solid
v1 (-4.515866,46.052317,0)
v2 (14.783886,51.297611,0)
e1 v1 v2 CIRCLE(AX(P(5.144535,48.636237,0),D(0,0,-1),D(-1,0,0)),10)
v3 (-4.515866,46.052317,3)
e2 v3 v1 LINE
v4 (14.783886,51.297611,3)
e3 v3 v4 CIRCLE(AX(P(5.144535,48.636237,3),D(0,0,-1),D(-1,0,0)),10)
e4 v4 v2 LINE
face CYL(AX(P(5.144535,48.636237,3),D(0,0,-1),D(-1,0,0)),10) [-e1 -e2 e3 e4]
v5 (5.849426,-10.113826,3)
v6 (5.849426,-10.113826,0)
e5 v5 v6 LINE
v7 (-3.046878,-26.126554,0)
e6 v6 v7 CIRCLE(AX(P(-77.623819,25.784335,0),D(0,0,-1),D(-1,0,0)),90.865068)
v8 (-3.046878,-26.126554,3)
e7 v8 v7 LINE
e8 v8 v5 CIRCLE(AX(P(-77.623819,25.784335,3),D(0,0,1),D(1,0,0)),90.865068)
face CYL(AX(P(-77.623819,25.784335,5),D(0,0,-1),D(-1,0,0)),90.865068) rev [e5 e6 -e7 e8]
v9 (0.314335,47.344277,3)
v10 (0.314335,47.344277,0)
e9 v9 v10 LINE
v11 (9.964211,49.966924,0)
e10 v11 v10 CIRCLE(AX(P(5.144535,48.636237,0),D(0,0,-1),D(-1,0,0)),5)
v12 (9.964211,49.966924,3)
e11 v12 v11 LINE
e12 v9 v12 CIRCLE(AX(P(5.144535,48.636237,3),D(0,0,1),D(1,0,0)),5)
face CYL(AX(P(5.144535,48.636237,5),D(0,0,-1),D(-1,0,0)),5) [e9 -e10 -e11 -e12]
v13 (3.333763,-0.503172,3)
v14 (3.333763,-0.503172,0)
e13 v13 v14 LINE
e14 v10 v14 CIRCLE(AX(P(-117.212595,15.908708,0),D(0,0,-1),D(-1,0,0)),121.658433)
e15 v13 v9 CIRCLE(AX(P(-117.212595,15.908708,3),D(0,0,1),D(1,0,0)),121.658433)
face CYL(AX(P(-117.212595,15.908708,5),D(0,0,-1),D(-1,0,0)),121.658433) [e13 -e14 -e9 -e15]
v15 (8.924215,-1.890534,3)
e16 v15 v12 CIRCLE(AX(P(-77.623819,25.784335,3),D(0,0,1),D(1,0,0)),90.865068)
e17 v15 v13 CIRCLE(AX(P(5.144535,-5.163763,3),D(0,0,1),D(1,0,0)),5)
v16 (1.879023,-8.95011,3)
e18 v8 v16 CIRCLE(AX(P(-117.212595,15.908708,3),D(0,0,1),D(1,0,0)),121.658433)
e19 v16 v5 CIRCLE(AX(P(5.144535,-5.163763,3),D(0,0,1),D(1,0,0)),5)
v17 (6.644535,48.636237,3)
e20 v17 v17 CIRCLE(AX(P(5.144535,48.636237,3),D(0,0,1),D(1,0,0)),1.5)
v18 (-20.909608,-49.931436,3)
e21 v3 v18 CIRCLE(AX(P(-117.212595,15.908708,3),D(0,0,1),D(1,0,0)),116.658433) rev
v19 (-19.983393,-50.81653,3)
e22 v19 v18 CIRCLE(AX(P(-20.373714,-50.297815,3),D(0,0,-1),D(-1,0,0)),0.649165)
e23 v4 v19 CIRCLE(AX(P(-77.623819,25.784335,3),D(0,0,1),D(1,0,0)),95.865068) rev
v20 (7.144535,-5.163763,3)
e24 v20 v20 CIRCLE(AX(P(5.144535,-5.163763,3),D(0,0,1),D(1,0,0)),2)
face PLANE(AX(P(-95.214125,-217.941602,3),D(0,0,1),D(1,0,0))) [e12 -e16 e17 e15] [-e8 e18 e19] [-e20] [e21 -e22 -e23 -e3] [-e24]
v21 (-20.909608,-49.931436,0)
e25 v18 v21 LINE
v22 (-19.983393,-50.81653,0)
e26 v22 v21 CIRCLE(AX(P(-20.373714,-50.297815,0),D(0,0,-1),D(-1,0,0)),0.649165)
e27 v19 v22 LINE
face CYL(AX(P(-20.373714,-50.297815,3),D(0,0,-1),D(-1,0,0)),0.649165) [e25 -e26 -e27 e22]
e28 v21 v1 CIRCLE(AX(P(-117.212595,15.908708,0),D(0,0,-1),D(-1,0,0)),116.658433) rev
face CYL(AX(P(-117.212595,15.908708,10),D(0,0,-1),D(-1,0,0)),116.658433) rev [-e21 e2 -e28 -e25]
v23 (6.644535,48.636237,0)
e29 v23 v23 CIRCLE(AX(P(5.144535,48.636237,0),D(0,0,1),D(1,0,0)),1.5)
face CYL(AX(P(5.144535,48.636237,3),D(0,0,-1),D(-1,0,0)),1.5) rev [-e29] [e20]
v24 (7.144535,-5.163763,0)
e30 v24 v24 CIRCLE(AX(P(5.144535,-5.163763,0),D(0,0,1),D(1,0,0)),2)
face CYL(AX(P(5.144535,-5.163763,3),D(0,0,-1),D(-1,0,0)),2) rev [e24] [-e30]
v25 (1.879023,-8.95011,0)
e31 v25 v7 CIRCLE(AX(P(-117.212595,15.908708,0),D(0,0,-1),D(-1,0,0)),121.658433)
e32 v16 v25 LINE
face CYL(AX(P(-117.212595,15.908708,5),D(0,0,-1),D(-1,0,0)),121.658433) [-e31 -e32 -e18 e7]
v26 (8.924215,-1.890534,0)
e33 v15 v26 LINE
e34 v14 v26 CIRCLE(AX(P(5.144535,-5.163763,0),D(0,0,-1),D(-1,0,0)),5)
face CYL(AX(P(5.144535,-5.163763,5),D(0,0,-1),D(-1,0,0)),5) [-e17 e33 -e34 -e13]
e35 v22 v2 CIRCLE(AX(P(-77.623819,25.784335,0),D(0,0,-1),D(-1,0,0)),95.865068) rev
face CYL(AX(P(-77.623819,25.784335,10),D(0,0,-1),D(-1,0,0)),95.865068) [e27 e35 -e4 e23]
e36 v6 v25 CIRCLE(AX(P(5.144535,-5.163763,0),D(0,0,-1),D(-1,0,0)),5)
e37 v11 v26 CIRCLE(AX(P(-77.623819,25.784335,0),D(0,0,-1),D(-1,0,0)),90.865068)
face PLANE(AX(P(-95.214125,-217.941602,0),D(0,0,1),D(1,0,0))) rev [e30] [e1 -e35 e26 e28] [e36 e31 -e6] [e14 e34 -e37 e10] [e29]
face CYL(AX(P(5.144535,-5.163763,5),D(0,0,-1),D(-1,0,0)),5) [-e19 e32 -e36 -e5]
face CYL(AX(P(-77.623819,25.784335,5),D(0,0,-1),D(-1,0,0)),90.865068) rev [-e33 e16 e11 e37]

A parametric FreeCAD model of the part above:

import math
import FreeCAD as App
import Part
import Sketcher

V = App.Vector

doc = App.newDocument("Part")
params = doc.addObject("Spreadsheet::Sheet", "Params")
for row, (alias, value) in enumerate([
    ("sketch1_diameter", "4 mm"),
    ("sketch1_diameter2", "3 mm"),
    ("sketch1_radius", "5 mm"),
    ("pad1_length", "3 mm"),
    ("sketch2_radius", "2 mm"),
    ("sketch2_radius2", "5 mm"),
    ("pocket1_length", "10 mm"),
    ("sketch3_radius", "10 mm"),
    ("sketch3_radius2", "5 mm"),
    ("sketch3_radius3", "2 mm"),
    ("pad2_length", "3 mm"),
    ("sketch4_radius", "5 mm"),
    ("pocket2_length", "5 mm"),
], start=1):
    params.set(f"A{row}", alias)
    params.set(f"B{row}", "=" + value)
    params.setAlias(f"B{row}", alias)

body = doc.addObject("PartDesign::Body", "Body")

# Sketch on XY plane
sketch1 = body.newObject("Sketcher::SketchObject", "Sketch")
sketch1.AttachmentSupport = (doc.getObject("XY_Plane"), [""])
sketch1.MapMode = "FlatFace"
sketch1.addGeometry(Part.ArcOfCircle(Part.Circle(V(-21.755465, -51.743763, 0), V(0, 0, 1), 5), math.radians(149.99352), math.radians(309.596709)), False)
sketch1.addGeometry(Part.ArcOfCircle(Part.Circle(V(-95.214125, 21.736237, 0), V(0, 0, 1), 108.88019), math.radians(-45.255704), math.radians(15.251758)), False)
sketch1.addGeometry(Part.ArcOfCircle(Part.Circle(V(5.144535, 48.636237, 0), V(0, 0, 1), 5), math.radians(20.390845), math.radians(180)), False)
sketch1.addGeometry(Part.ArcOfCircle(Part.Circle(V(-95.214125, 21.736237, 0), V(0, 0, 1), 99.08019), math.radians(-45.756777), math.radians(15.753382)), False)
sketch1.addGeometry(Part.Circle(V(-21.755465, -51.743763, 0), V(0, 0, 1), 2), False)
sketch1.addGeometry(Part.ArcOfCircle(Part.Circle(V(5.144535, -5.163763, 0), V(0, 0, 1), 2), math.radians(90), math.radians(239.99352)), False)
sketch1.addGeometry(Part.ArcOfCircle(Part.Circle(V(5.144535, -5.163763, 0), V(0, 0, 1), 2), math.radians(-120.00648), math.radians(90)), False)
sketch1.addGeometry(Part.Circle(V(5.144535, 48.636237, 0), V(0, 0, 1), 1.5), False)
sketch1.addConstraint(Sketcher.Constraint("Coincident", 0, 2, 1, 1))
sketch1.addConstraint(Sketcher.Constraint("Coincident", 1, 2, 2, 1))
sketch1.addConstraint(Sketcher.Constraint("Coincident", 2, 2, 3, 2))
sketch1.addConstraint(Sketcher.Constraint("Coincident", 3, 1, 0, 1))
sketch1.addConstraint(Sketcher.Constraint("Tangent", 5, 1, 6, 2))
sketch1.addConstraint(Sketcher.Constraint("Coincident", 6, 1, 5, 2))
sketch1.addConstraint(Sketcher.Constraint("Coincident", 3, 3, 1, 3))
sketch1.addConstraint(Sketcher.Constraint("Coincident", 4, 3, 0, 3))
sketch1.addConstraint(Sketcher.Constraint("Coincident", 7, 3, 2, 3))
sketch1.addConstraint(Sketcher.Constraint("Equal", 0, 2))
sketch1.addConstraint(Sketcher.Constraint("Equal", 4, 5))
sketch1.addConstraint(Sketcher.Constraint("Horizontal", 7, 3, 2, 2))
sketch1.addConstraint(Sketcher.Constraint("Vertical", 2, 3, 5, 3))
sketch1.addConstraint(Sketcher.Constraint("Vertical", 7, 3, 5, 1))
sketch1.addConstraint(Sketcher.Constraint("Diameter", 4, 4.0))
sketch1.addConstraint(Sketcher.Constraint("Diameter", 7, 3.0))
sketch1.addConstraint(Sketcher.Constraint("Radius", 0, 5.0))
sketch1.addConstraint(Sketcher.Constraint("DistanceY", 1, 3, 2, 3, 26.9))
sketch1.addConstraint(Sketcher.Constraint("DistanceX", 0, 3, 2, 3, 26.9))
sketch1.addConstraint(Sketcher.Constraint("DistanceY", 5, 3, 2, 3, 53.8))
sketch1.addConstraint(Sketcher.Constraint("Radius", 1, 108.88019))
sketch1.addConstraint(Sketcher.Constraint("Radius", 3, 99.08019))
sketch1.addConstraint(Sketcher.Constraint("DistanceY", 0, 3, 1, 3, 73.48))
sketch1.addConstraint(Sketcher.Constraint("DistanceY", 6, 1, -1, 1, 6.8957))
sketch1.addConstraint(Sketcher.Constraint("DistanceY", 0, 2, -1, 1, 55.596512))
sketch1.addConstraint(Sketcher.Constraint("DistanceX", 3, 1, -1, 1, 26.085309))
sketch1.setExpression("Constraints[14]", "Params.sketch1_diameter")
sketch1.setExpression("Constraints[15]", "Params.sketch1_diameter2")
sketch1.setExpression("Constraints[16]", "Params.sketch1_radius")
pad1 = body.newObject("PartDesign::Pad", "Pad")
pad1.Profile = sketch1
pad1.setExpression("Length", "Params.pad1_length")

# Sketch on XY plane
sketch2 = body.newObject("Sketcher::SketchObject", "Sketch001")
sketch2.AttachmentSupport = (doc.getObject("XY_Plane"), [""])
sketch2.MapMode = "FlatFace"
sketch2.addGeometry(Part.ArcOfCircle(Part.Circle(V(-95.214125, 21.736237, 0), V(0, 0, 1), 99.08019), math.radians(-45.756777), math.radians(-28.60233)), False)
sketch2.addGeometry(Part.ArcOfCircle(Part.Circle(V(-117.212595, 15.908708, 0), V(0, 0, 1), 116.658433), math.radians(-34.359521), math.radians(-20.893898)), False)
sketch2.addGeometry(Part.ArcOfCircle(Part.Circle(V(-21.755465, -51.743763, 0), V(0, 0, 1), 2), math.radians(64.9804), math.radians(180)), False)
sketch2.addGeometry(Part.ArcOfCircle(Part.Circle(V(-21.755465, -51.743763, 0), V(0, 0, 1), 2), math.radians(180), math.radians(387.620717)), False)
sketch2.addGeometry(Part.ArcOfCircle(Part.Circle(V(-77.623819, 25.784335, 0), V(0, 0, 1), 95.865068), math.radians(-53.039363), math.radians(-34.519113)), False)
sketch2.addGeometry(Part.ArcOfCircle(Part.Circle(V(-95.214125, 21.736237, 0), V(0, 0, 1), 108.88019), math.radians(-45.255704), math.radians(-27.500919)), False)
sketch2.addGeometry(Part.ArcOfCircle(Part.Circle(V(-21.755465, -51.743763, 0), V(0, 0, 1), 5), math.radians(149.99352), math.radians(309.596709)), False)
sketch2.addConstraint(Sketcher.Constraint("Coincident", 0, 2, 1, 2))
sketch2.addConstraint(Sketcher.Constraint("Coincident", 1, 1, 2, 1))
sketch2.addConstraint(Sketcher.Constraint("Tangent", 2, 2, 3, 1))
sketch2.addConstraint(Sketcher.Constraint("Coincident", 3, 2, 4, 1))
sketch2.addConstraint(Sketcher.Constraint("Coincident", 4, 2, 5, 2))
sketch2.addConstraint(Sketcher.Constraint("Coincident", 5, 1, 6, 2))
sketch2.addConstraint(Sketcher.Constraint("Coincident", 6, 1, 0, 1))
sketch2.addConstraint(Sketcher.Constraint("Coincident", 5, 3, 0, 3))
sketch2.addConstraint(Sketcher.Constraint("Coincident", 6, 3, 2, 3))
sketch2.addConstraint(Sketcher.Constraint("Equal", 2, 3))
sketch2.addConstraint(Sketcher.Constraint("Horizontal", 6, 3, 2, 2))
sketch2.addConstraint(Sketcher.Constraint("Radius", 2, 2.0))
sketch2.addConstraint(Sketcher.Constraint("Radius", 6, 5.0))
sketch2.addConstraint(Sketcher.Constraint("Radius", 0, 99.08019))
sketch2.addConstraint(Sketcher.Constraint("Radius", 4, 95.865068))
sketch2.addConstraint(Sketcher.Constraint("Radius", 5, 108.88019))
sketch2.addConstraint(Sketcher.Constraint("DistanceY", 2, 3, 0, 3, 73.48))
sketch2.addConstraint(Sketcher.Constraint("Radius", 1, 116.658433))
sketch2.addConstraint(Sketcher.Constraint("DistanceX", 2, 3, 5, 1, 3.186899))
sketch2.addConstraint(Sketcher.Constraint("DistanceX", 6, 1, 1, 1, 5.175701))
sketch2.addConstraint(Sketcher.Constraint("DistanceY", -1, 1, 1, 3, 15.908708))
sketch2.addConstraint(Sketcher.Constraint("DistanceX", 4, 3, -1, 1, 77.623819))
sketch2.addConstraint(Sketcher.Constraint("DistanceY", 0, 2, -1, 1, 25.696181))
sketch2.addConstraint(Sketcher.Constraint("DistanceX", 1, 1, -1, 1, 20.909608))
sketch2.addConstraint(Sketcher.Constraint("DistanceY", 3, 2, -1, 1, 50.81653))
sketch2.setExpression("Constraints[11]", "Params.sketch2_radius")
sketch2.setExpression("Constraints[12]", "Params.sketch2_radius2")
pocket1 = body.newObject("PartDesign::Pocket", "Pocket")
pocket1.Profile = sketch2
pocket1.setExpression("Length", "Params.pocket1_length")
pocket1.Reversed = True

# Sketch on XY plane
sketch3 = body.newObject("Sketcher::SketchObject", "Sketch002")
sketch3.AttachmentSupport = (doc.getObject("XY_Plane"), [""])
sketch3.MapMode = "FlatFace"
sketch3.addGeometry(Part.ArcOfCircle(Part.Circle(V(-117.212595, 15.908708, 0), V(0, 0, 1), 116.658433), math.radians(-20.893898), math.radians(14.974672)), False)
sketch3.addGeometry(Part.ArcOfCircle(Part.Circle(V(5.144535, 48.636237, 0), V(0, 0, 1), 10), math.radians(15.434545), math.radians(194.974672)), False)
sketch3.addGeometry(Part.ArcOfCircle(Part.Circle(V(-77.623819, 25.784335, 0), V(0, 0, 1), 95.865068), math.radians(-34.519113), math.radians(15.434545)), False)
sketch3.addGeometry(Part.ArcOfCircle(Part.Circle(V(-95.214125, 21.736237, 0), V(0, 0, 1), 108.88019), math.radians(-27.500919), math.radians(15.251758)), False)
sketch3.addGeometry(Part.ArcOfCircle(Part.Circle(V(5.144535, 48.636237, 0), V(0, 0, 1), 5), math.radians(20.390845), math.radians(180)), False)
sketch3.addGeometry(Part.ArcOfCircle(Part.Circle(V(-95.214125, 21.736237, 0), V(0, 0, 1), 99.08019), math.radians(-28.60233), math.radians(15.753382)), False)
sketch3.addGeometry(Part.ArcOfCircle(Part.Circle(V(-20.373714, -50.297815, 0), V(0, 0, 1), 0.649165), math.radians(145.640479), math.radians(306.960637)), False)
sketch3.addGeometry(Part.ArcOfCircle(Part.Circle(V(-21.755465, -51.743763, 0), V(0, 0, 1), 2), math.radians(27.620717), math.radians(64.9804)), False)
sketch3.addConstraint(Sketcher.Constraint("Tangent", 0, 2, 1, 2))
sketch3.addConstraint(Sketcher.Constraint("Tangent", 1, 1, 2, 2))
sketch3.addConstraint(Sketcher.Constraint("Coincident", 2, 1, 3, 1))
sketch3.addConstraint(Sketcher.Constraint("Coincident", 3, 2, 4, 1))
sketch3.addConstraint(Sketcher.Constraint("Coincident", 4, 2, 5, 2))
sketch3.addConstraint(Sketcher.Constraint("Coincident", 5, 1, 0, 1))
sketch3.addConstraint(Sketcher.Constraint("Coincident", 6, 1, 7, 2))
sketch3.addConstraint(Sketcher.Constraint("Coincident", 7, 1, 6, 2))
sketch3.addConstraint(Sketcher.Constraint("Coincident", 4, 3, 1, 3))
sketch3.addConstraint(Sketcher.Constraint("Coincident", 5, 3, 3, 3))
sketch3.addConstraint(Sketcher.Constraint("Horizontal", 1, 3, 4, 2))
sketch3.addConstraint(Sketcher.Constraint("Radius", 1, 10.0))
sketch3.addConstraint(Sketcher.Constraint("Radius", 4, 5.0))
sketch3.addConstraint(Sketcher.Constraint("Radius", 7, 2.0))
sketch3.addConstraint(Sketcher.Constraint("DistanceY", 3, 3, 1, 3, 26.9))
sketch3.addConstraint(Sketcher.Constraint("DistanceX", 7, 3, 1, 3, 26.9))
sketch3.addConstraint(Sketcher.Constraint("Radius", 2, 95.865068))
sketch3.addConstraint(Sketcher.Constraint("Radius", 3, 108.88019))
sketch3.addConstraint(Sketcher.Constraint("Radius", 5, 99.08019))
sketch3.addConstraint(Sketcher.Constraint("DistanceY", 7, 3, 3, 3, 73.48))
sketch3.addConstraint(Sketcher.Constraint("Radius", 0, 116.658433))
sketch3.addConstraint(Sketcher.Constraint("Radius", 6, 0.649165))
sketch3.addConstraint(Sketcher.Constraint("DistanceX", 6, 3, 1, 1, 35.1576))
sketch3.addConstraint(Sketcher.Constraint("DistanceY", 5, 1, 0, 2, 71.748498))
sketch3.addConstraint(Sketcher.Constraint("DistanceX", 2, 3, -1, 1, 77.623819))
sketch3.addConstraint(Sketcher.Constraint("DistanceY", -1, 1, 1, 1, 51.297611))
sketch3.addConstraint(Sketcher.Constraint("DistanceY", 2, 1, -1, 1, 28.540588))
sketch3.addConstraint(Sketcher.Constraint("DistanceX", 6, 1, -1, 1, 20.909608))
sketch3.setExpression("Constraints[11]", "Params.sketch3_radius")
sketch3.setExpression("Constraints[12]", "Params.sketch3_radius2")
sketch3.setExpression("Constraints[13]", "Params.sketch3_radius3")
pad2 = body.newObject("PartDesign::Pad", "Pad001")
pad2.Profile = sketch3
pad2.setExpression("Length", "Params.pad2_length")

# Sketch on XY plane
sketch4 = body.newObject("Sketcher::SketchObject", "Sketch003")
sketch4.AttachmentSupport = (doc.getObject("XY_Plane"), [""])
sketch4.MapMode = "FlatFace"
sketch4.addGeometry(Part.ArcOfCircle(Part.Circle(V(-77.623819, 25.784335, 0), V(0, 0, 1), 90.865068), math.radians(-17.732359), math.radians(15.434545)), False)
sketch4.addGeometry(Part.ArcOfCircle(Part.Circle(V(5.144535, -5.163763, 0), V(0, 0, 1), 5), math.radians(40.892785), math.radians(111.23257)), False)
sketch4.addGeometry(Part.ArcOfCircle(Part.Circle(V(-117.212595, 15.908708, 0), V(0, 0, 1), 121.658433), math.radians(-7.752912), math.radians(14.974672)), False)
sketch4.addGeometry(Part.ArcOfCircle(Part.Circle(V(5.144535, 48.636237, 0), V(0, 0, 1), 5), math.radians(-165.025328), math.radians(15.434545)), False)
sketch4.addGeometry(Part.ArcOfCircle(Part.Circle(V(5.144535, -5.163763, 0), V(0, 0, 1), 5), math.radians(-130.775932), math.radians(-81.895553)), False)
sketch4.addGeometry(Part.ArcOfCircle(Part.Circle(V(-77.623819, 25.784335, 0), V(0, 0, 1), 90.865068), math.radians(-34.84068), math.radians(-23.270408)), False)
sketch4.addGeometry(Part.ArcOfCircle(Part.Circle(V(-117.212595, 15.908708, 0), V(0, 0, 1), 121.658432), math.radians(-20.213462), math.radians(-11.790449)), False)
sketch4.addConstraint(Sketcher.Constraint("Coincident", 0, 1, 1, 1))
sketch4.addConstraint(Sketcher.Constraint("Coincident", 1, 2, 2, 1))
sketch4.addConstraint(Sketcher.Constraint("Tangent", 2, 2, 3, 1))
sketch4.addConstraint(Sketcher.Constraint("Tangent", 3, 2, 0, 2))
sketch4.addConstraint(Sketcher.Constraint("Coincident", 4, 2, 5, 2))
sketch4.addConstraint(Sketcher.Constraint("Coincident", 5, 1, 6, 1))
sketch4.addConstraint(Sketcher.Constraint("Coincident", 6, 2, 4, 1))
sketch4.addConstraint(Sketcher.Constraint("Coincident", 4, 3, 1, 3))
sketch4.addConstraint(Sketcher.Constraint("Coincident", 5, 3, 0, 3))
sketch4.addConstraint(Sketcher.Constraint("Coincident", 6, 3, 2, 3))
sketch4.addConstraint(Sketcher.Constraint("Equal", 1, 3))
sketch4.addConstraint(Sketcher.Constraint("Equal", 3, 4))
sketch4.addConstraint(Sketcher.Constraint("Equal", 0, 5))
sketch4.addConstraint(Sketcher.Constraint("Equal", 2, 6))
sketch4.addConstraint(Sketcher.Constraint("Vertical", 1, 3, 3, 3))
sketch4.addConstraint(Sketcher.Constraint("Radius", 1, 5.0))
sketch4.addConstraint(Sketcher.Constraint("DistanceY", 1, 3, 3, 3, 53.8))
sketch4.addConstraint(Sketcher.Constraint("Radius", 0, 90.865068))
sketch4.addConstraint(Sketcher.Constraint("Radius", 2, 121.658433))
sketch4.addConstraint(Sketcher.Constraint("DistanceX", 0, 3, -1, 1, 77.623819))
sketch4.addConstraint(Sketcher.Constraint("DistanceX", -1, 1, 3, 2, 9.964211))
sketch4.addConstraint(Sketcher.Constraint("DistanceX", 5, 1, -1, 1, 3.046878))
sketch4.addConstraint(Sketcher.Constraint("DistanceY", 6, 2, -1, 1, 8.95011))
sketch4.setExpression("Constraints[15]", "Params.sketch4_radius")
pocket2 = body.newObject("PartDesign::Pocket", "Pocket001")
pocket2.Profile = sketch4
pocket2.setExpression("Length", "Params.pocket2_length")
pocket2.Reversed = True

doc.recompute()
